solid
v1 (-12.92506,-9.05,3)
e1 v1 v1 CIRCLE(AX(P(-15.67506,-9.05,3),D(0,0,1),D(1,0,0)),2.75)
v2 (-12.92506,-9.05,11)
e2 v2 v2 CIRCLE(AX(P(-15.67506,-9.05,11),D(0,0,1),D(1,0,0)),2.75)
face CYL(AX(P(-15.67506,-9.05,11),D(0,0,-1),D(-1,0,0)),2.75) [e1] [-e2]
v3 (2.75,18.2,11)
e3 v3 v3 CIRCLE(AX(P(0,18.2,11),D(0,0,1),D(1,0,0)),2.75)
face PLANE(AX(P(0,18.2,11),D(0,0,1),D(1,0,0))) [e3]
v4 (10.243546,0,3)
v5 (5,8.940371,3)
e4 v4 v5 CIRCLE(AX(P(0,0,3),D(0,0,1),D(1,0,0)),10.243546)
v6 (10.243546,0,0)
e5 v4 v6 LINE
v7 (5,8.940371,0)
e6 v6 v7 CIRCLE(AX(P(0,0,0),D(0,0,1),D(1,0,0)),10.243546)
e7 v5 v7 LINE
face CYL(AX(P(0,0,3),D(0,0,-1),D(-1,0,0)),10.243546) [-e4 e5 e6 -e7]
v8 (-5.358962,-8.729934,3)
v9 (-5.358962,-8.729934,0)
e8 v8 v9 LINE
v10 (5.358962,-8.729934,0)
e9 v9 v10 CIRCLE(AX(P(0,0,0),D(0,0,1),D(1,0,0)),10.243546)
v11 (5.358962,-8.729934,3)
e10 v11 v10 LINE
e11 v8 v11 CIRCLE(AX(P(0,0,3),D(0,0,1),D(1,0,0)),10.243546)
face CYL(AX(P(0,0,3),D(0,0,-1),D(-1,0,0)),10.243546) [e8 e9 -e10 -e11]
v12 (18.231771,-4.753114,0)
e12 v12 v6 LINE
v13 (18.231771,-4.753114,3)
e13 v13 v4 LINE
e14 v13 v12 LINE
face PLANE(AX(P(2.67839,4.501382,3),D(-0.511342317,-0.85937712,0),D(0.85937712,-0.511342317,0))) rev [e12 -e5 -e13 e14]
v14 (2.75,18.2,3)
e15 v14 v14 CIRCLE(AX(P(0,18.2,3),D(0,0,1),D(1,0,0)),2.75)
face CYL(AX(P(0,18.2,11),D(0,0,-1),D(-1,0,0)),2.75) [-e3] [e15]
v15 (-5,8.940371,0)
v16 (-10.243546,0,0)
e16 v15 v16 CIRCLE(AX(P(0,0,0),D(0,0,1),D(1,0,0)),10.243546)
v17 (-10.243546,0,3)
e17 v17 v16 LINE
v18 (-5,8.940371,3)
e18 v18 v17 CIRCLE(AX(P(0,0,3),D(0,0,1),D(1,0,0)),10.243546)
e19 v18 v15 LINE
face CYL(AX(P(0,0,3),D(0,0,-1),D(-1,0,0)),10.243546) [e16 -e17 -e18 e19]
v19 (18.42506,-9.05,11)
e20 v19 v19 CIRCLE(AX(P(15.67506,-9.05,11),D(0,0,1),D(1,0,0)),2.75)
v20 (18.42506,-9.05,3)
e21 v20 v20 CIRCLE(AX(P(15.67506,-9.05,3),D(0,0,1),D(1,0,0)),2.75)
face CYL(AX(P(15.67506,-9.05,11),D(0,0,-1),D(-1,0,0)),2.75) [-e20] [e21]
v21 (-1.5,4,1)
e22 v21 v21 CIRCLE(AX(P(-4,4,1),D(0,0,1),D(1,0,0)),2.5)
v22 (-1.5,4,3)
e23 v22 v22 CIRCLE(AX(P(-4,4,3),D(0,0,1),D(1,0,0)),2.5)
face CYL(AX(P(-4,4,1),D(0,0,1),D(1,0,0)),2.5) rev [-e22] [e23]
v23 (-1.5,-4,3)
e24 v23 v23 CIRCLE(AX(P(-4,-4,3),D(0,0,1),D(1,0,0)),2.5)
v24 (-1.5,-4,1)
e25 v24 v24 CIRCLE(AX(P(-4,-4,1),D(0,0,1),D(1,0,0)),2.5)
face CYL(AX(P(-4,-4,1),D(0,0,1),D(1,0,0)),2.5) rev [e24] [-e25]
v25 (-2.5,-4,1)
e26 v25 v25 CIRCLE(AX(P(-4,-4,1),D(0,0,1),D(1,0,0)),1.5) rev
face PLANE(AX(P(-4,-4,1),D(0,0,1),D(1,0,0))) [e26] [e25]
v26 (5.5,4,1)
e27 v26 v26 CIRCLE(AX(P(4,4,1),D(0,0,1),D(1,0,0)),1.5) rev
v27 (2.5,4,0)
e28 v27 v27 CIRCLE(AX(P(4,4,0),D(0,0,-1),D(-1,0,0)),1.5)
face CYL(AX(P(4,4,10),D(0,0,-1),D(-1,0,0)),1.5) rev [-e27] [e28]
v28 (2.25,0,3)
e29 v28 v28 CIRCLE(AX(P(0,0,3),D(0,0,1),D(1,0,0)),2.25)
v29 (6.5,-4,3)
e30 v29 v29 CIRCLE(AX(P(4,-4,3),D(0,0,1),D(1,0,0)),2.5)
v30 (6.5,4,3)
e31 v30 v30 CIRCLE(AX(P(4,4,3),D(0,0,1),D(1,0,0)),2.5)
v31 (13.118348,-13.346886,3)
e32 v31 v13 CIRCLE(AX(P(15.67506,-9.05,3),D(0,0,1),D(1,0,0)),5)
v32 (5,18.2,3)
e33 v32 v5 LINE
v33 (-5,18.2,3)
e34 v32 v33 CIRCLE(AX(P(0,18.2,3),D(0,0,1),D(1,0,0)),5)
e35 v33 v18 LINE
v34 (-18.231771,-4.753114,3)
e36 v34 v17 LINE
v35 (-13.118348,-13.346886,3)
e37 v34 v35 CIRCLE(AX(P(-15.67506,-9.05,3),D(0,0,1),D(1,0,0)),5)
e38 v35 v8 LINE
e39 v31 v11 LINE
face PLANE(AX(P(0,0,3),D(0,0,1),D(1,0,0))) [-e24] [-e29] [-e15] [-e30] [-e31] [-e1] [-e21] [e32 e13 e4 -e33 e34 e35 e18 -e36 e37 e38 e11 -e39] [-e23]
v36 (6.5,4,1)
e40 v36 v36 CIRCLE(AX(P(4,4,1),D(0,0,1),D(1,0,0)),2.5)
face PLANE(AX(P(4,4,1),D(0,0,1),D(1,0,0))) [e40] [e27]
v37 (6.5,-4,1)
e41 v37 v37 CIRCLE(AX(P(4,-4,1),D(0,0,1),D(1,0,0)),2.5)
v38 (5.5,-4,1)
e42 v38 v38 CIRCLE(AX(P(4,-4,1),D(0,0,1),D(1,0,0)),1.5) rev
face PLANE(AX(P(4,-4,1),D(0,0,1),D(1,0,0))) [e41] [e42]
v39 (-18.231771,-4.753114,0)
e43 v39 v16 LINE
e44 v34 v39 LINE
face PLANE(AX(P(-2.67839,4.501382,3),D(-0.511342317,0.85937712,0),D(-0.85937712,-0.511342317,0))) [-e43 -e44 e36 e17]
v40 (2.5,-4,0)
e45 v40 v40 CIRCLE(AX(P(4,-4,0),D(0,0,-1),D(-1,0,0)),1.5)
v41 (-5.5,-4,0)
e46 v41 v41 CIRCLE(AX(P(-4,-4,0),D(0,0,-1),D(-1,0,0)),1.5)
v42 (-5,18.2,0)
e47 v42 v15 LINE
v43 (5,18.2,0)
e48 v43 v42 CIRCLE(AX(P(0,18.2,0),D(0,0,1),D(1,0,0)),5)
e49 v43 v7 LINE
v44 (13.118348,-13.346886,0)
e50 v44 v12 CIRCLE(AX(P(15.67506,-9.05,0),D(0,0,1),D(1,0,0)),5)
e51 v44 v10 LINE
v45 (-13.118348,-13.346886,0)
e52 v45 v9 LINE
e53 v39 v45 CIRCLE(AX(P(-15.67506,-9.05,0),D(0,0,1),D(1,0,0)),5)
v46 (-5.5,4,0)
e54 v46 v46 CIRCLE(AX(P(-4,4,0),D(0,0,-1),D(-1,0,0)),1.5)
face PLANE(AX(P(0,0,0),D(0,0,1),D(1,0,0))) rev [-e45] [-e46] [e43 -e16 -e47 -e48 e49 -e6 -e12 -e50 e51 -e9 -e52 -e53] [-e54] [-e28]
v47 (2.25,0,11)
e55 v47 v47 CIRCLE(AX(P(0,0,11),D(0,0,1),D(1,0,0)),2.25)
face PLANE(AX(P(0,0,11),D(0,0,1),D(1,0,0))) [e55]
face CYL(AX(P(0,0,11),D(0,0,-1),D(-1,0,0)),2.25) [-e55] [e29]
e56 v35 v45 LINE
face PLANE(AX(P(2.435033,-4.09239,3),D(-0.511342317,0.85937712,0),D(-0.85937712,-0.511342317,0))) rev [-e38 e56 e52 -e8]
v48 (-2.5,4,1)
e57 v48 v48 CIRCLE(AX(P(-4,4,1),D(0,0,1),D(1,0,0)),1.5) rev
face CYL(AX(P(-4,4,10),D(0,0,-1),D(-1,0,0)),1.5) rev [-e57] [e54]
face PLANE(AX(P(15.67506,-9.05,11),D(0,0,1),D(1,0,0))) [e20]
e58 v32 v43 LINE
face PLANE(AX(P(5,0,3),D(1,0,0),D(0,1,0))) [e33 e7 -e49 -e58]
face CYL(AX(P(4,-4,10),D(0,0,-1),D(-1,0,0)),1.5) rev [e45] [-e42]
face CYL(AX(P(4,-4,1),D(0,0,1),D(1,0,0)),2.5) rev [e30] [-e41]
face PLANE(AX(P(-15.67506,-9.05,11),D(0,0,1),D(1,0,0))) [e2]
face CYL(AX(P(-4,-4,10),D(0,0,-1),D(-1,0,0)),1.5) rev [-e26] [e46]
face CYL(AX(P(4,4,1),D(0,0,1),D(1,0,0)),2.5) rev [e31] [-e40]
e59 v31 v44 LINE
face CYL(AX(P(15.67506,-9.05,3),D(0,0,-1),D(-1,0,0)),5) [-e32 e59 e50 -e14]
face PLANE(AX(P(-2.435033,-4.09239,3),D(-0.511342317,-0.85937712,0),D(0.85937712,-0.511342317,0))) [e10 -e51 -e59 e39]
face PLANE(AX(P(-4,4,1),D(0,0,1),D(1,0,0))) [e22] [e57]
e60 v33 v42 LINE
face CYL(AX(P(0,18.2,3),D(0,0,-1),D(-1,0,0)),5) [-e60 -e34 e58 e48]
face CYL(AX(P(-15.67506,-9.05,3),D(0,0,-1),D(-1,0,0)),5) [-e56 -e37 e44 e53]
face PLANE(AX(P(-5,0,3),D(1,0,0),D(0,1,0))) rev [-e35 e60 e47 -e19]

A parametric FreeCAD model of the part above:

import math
import FreeCAD as App
import Part
import Sketcher

V = App.Vector
Q = App.Units.Quantity

doc = App.newDocument("Part")
body = doc.addObject("PartDesign::Body", "Body")

sketch1 = doc.addObject("Sketcher::SketchObject", "Sketch")
body.addObject(sketch1)
sketch1.AttachmentSupport = (doc.XY_Plane, [""])
sketch1.MapMode = "FlatFace"
sketch1.addGeometry([
    Part.LineSegment(V(-13.118348, -13.346886, 0), V(-5.358962, -8.729934, 0)),
    Part.ArcOfCircle(Part.Circle(V(0, 0, 0), V(0, 0, 1), 10.243546), math.radians(-121.544123), math.radians(-58.455877)),
    Part.LineSegment(V(5.358962, -8.729934, 0), V(13.118348, -13.346886, 0)),
    Part.ArcOfCircle(Part.Circle(V(15.67506, -9.05, 0), V(0, 0, 1), 5), math.radians(-120.753282), math.radians(59.246718)),
    Part.LineSegment(V(18.231771, -4.753114, 0), V(10.243546, 0, 0)),
    Part.ArcOfCircle(Part.Circle(V(0, 0, 0), V(0, 0, 1), 10.243546), math.radians(0), math.radians(60.783421)),
    Part.LineSegment(V(5, 8.940371, 0), V(5, 18.2, 0)),
    Part.ArcOfCircle(Part.Circle(V(0, 18.2, 0), V(0, 0, 1), 5), math.radians(0), math.radians(180)),
    Part.LineSegment(V(-5, 18.2, 0), V(-5, 8.940371, 0)),
    Part.ArcOfCircle(Part.Circle(V(0, 0, 0), V(0, 0, 1), 10.243546), math.radians(119.216579), math.radians(180)),
    Part.LineSegment(V(-10.243546, 0, 0), V(-18.231771, -4.753114, 0)),
    Part.ArcOfCircle(Part.Circle(V(-15.67506, -9.05, 0), V(0, 0, 1), 5), math.radians(120.753282), math.radians(300.753282)),
], False)
sketch1.addConstraint([
    Sketcher.Constraint("Coincident", 0, 2, 1, 1),
    Sketcher.Constraint("Coincident", 1, 2, 2, 1),
    Sketcher.Constraint("Tangent", 2, 2, 3, 1),
    Sketcher.Constraint("Tangent", 3, 2, 4, 1),
    Sketcher.Constraint("Coincident", 4, 2, 5, 1),
    Sketcher.Constraint("Coincident", 5, 2, 6, 1),
    Sketcher.Constraint("Tangent", 6, 2, 7, 1),
    Sketcher.Constraint("Tangent", 7, 2, 8, 1),
    Sketcher.Constraint("Coincident", 8, 2, 9, 1),
    Sketcher.Constraint("Coincident", 9, 2, 10, 1),
    Sketcher.Constraint("Tangent", 10, 2, 11, 1),
    Sketcher.Constraint("Tangent", 11, 2, 0, 1),
    Sketcher.Constraint("Vertical", 6),
    Sketcher.Constraint("Vertical", 8),
    Sketcher.Constraint("Coincident", 1, 3, -1, 1),
    Sketcher.Constraint("Coincident", 5, 3, -1, 1),
    Sketcher.Constraint("Coincident", 9, 3, -1, 1),
    Sketcher.Constraint("Equal", 1, 5),
    Sketcher.Constraint("Equal", 3, 7),
    Sketcher.Constraint("Equal", 5, 9),
    Sketcher.Constraint("Equal", 7, 11),
    Sketcher.Constraint("Symmetric", 3, 3, 11, 3, -2),
    Sketcher.Constraint("PointOnObject", 7, 3, -2),
    Sketcher.Constraint("PointOnObject", 4, 2, -1),
    Sketcher.Constraint("PointOnObject", 9, 2, -1),
    Sketcher.Constraint("Parallel", 2, 4),
    Sketcher.Constraint("Parallel", 0, 10),
    Sketcher.Constraint("Radius", 3, Q("5 mm")),
    Sketcher.Constraint("DistanceY", -1, 1, 7, 3, Q("18.2 mm")),
    Sketcher.Constraint("DistanceY", 3, 3, -1, 1, Q("9.05 mm")),
    Sketcher.Constraint("Radius", 1, Q("10.243546 mm")),
    Sketcher.Constraint("Distance", 0, Q("9.029081 mm")),
])
pad1 = doc.addObject("PartDesign::Pad", "Pad")
body.addObject(pad1)
pad1.Profile = sketch1
pad1.Length = 3

sketch2 = doc.addObject("Sketcher::SketchObject", "Sketch001")
body.addObject(sketch2)
sketch2.AttachmentSupport = (doc.XY_Plane, [""])
sketch2.MapMode = "FlatFace"
sketch2.AttachmentOffset = App.Placement(V(0, 0, 3), App.Rotation())
sketch2.addGeometry([
    Part.Circle(V(0, 18.2, 0), V(0, 0, 1), 2.75),
    Part.Circle(V(15.67506, -9.05, 0), V(0, 0, 1), 2.75),
    Part.Circle(V(-15.67506, -9.05, 0), V(0, 0, 1), 2.75),
], False)
sketch2.addConstraint([
    Sketcher.Constraint("Equal", 0, 1),
    Sketcher.Constraint("Equal", 1, 2),
    Sketcher.Constraint("Symmetric", 1, 3, 2, 3, -2),
    Sketcher.Constraint("PointOnObject", 0, 3, -2),
    Sketcher.Constraint("Diameter", 0, Q("5.5 mm")),
    Sketcher.Constraint("DistanceY", -1, 1, 0, 3, Q("18.2 mm")),
    Sketcher.Constraint("DistanceY", 1, 3, -1, 1, Q("9.05 mm")),
    Sketcher.Constraint("DistanceX", -1, 1, 1, 3, Q("15.67506 mm")),
])
pad2 = doc.addObject("PartDesign::Pad", "Pad001")
body.addObject(pad2)
pad2.Profile = sketch2
pad2.Length = 8

sketch3 = doc.addObject("Sketcher::SketchObject", "Sketch002")
body.addObject(sketch3)
sketch3.AttachmentSupport = (doc.XY_Plane, [""])
sketch3.MapMode = "FlatFace"
sketch3.AttachmentOffset = App.Placement(V(0, 0, 3), App.Rotation())
sketch3.addGeometry(Part.Circle(V(0, 0, 0), V(0, 0, 1), 2.25), False)
sketch3.addConstraint([
    Sketcher.Constraint("Coincident", 0, 3, -1, 1),
    Sketcher.Constraint("Diameter", 0, Q("4.5 mm")),
])
pad3 = doc.addObject("PartDesign::Pad", "Pad002")
body.addObject(pad3)
pad3.Profile = sketch3
pad3.Length = 8

sketch4 = doc.addObject("Sketcher::SketchObject", "Sketch003")
body.addObject(sketch4)
sketch4.AttachmentSupport = (doc.XY_Plane, [""])
sketch4.MapMode = "FlatFace"
sketch4.addGeometry([
    Part.ArcOfCircle(Part.Circle(V(4, 4, 0), V(0, 0, 1), 1.5), math.radians(-90), math.radians(180)),
    Part.ArcOfCircle(Part.Circle(V(4, 4, 0), V(0, 0, 1), 1.5), math.radians(180), math.radians(270)),
    Part.ArcOfCircle(Part.Circle(V(-4, 4, 0), V(0, 0, 1), 1.5), math.radians(0), math.radians(180)),
    Part.ArcOfCircle(Part.Circle(V(-4, 4, 0), V(0, 0, 1), 1.5), math.radians(-90), math.radians(0)),
    Part.ArcOfCircle(Part.Circle(V(-4, 4, 0), V(0, 0, 1), 1.5), math.radians(180), math.radians(270)),
    Part.ArcOfCircle(Part.Circle(V(-4, -4, 0), V(0, 0, 1), 1.5), math.radians(90), math.radians(180)),
    Part.ArcOfCircle(Part.Circle(V(-4, -4, 0), V(0, 0, 1), 1.5), math.radians(0), math.radians(90)),
    Part.ArcOfCircle(Part.Circle(V(-4, -4, 0), V(0, 0, 1), 1.5), math.radians(180), math.radians(360)),
    Part.ArcOfCircle(Part.Circle(V(4, -4, 0), V(0, 0, 1), 1.5), math.radians(90), math.radians(180)),
    Part.ArcOfCircle(Part.Circle(V(4, -4, 0), V(0, 0, 1), 1.5), math.radians(180), math.radians(450)),
], False)
sketch4.addConstraint([
    Sketcher.Constraint("Tangent", 0, 1, 1, 2),
    Sketcher.Constraint("Coincident", 1, 1, 0, 2),
    Sketcher.Constraint("Tangent", 2, 1, 3, 2),
    Sketcher.Constraint("Tangent", 3, 1, 4, 2),
    Sketcher.Constraint("Tangent", 4, 1, 2, 2),
    Sketcher.Constraint("Tangent", 5, 1, 6, 2),
    Sketcher.Constraint("Tangent", 6, 1, 7, 2),
    Sketcher.Constraint("Tangent", 7, 1, 5, 2),
    Sketcher.Constraint("Tangent", 8, 1, 9, 2),
    Sketcher.Constraint("Coincident", 9, 1, 8, 2),
    Sketcher.Constraint("Equal", 1, 2),
    Sketcher.Constraint("Equal", 4, 5),
    Sketcher.Constraint("Equal", 7, 8),
    Sketcher.Constraint("Symmetric", 0, 3, 5, 3, -1, 1),
    Sketcher.Constraint("Symmetric", 2, 3, 8, 3, -1, 1),
    Sketcher.Constraint("Symmetric", 0, 3, 2, 3, -2),
    Sketcher.Constraint("Horizontal", 4, 3, 1, 1),
    Sketcher.Constraint("Horizontal", 1, 1, 2, 1),
    Sketcher.Constraint("Horizontal", 2, 1, 4, 1),
    Sketcher.Constraint("Horizontal", 9, 3, 6, 1),
    Sketcher.Constraint("Horizontal", 6, 1, 7, 1),
    Sketcher.Constraint("Horizontal", 7, 1, 9, 1),
    Sketcher.Constraint("Vertical", 9, 3, 0, 1),
    Sketcher.Constraint("Vertical", 7, 3, 3, 1),
    Sketcher.Constraint("Vertical", 3, 1, 5, 1),
    Sketcher.Constraint("Vertical", 0, 1, 8, 1),
    Sketcher.Constraint("Radius", 0, Q("1.5 mm")),
    Sketcher.Constraint("DistanceX", -1, 1, 0, 3, Q("4 mm")),
    Sketcher.Constraint("DistanceY", -1, 1, 0, 3, Q("4 mm")),
])
pocket1 = doc.addObject("PartDesign::Pocket", "Pocket")
body.addObject(pocket1)
pocket1.Profile = sketch4
pocket1.Length = 10
pocket1.Reversed = True

sketch5 = doc.addObject("Sketcher::SketchObject", "Sketch004")
body.addObject(sketch5)
sketch5.AttachmentSupport = (doc.XY_Plane, [""])
sketch5.MapMode = "FlatFace"
sketch5.AttachmentOffset = App.Placement(V(0, 0, 3), App.Rotation())
sketch5.addGeometry([
    Part.Circle(V(-4, 4, 0), V(0, 0, 1), 2.5),
    Part.Circle(V(4, 4, 0), V(0, 0, 1), 2.5),
    Part.Circle(V(4, -4, 0), V(0, 0, 1), 2.5),
    Part.Circle(V(-4, -4, 0), V(0, 0, 1), 2.5),
], False)
sketch5.addConstraint([
    Sketcher.Constraint("Equal", 0, 1),
    Sketcher.Constraint("Equal", 1, 2),
    Sketcher.Constraint("Equal", 2, 3),
    Sketcher.Constraint("Symmetric", 0, 3, 2, 3, -1, 1),
    Sketcher.Constraint("Symmetric", 1, 3, 3, 3, -1, 1),
    Sketcher.Constraint("Symmetric", 0, 3, 1, 3, -2),
    Sketcher.Constraint("Diameter", 0, Q("5 mm")),
    Sketcher.Constraint("DistanceX", 0, 3, -1, 1, Q("4 mm")),
    Sketcher.Constraint("DistanceY", -1, 1, 0, 3, Q("4 mm")),
])
pocket2 = doc.addObject("PartDesign::Pocket", "Pocket001")
body.addObject(pocket2)
pocket2.Profile = sketch5
pocket2.Length = 2

doc.recompute()
